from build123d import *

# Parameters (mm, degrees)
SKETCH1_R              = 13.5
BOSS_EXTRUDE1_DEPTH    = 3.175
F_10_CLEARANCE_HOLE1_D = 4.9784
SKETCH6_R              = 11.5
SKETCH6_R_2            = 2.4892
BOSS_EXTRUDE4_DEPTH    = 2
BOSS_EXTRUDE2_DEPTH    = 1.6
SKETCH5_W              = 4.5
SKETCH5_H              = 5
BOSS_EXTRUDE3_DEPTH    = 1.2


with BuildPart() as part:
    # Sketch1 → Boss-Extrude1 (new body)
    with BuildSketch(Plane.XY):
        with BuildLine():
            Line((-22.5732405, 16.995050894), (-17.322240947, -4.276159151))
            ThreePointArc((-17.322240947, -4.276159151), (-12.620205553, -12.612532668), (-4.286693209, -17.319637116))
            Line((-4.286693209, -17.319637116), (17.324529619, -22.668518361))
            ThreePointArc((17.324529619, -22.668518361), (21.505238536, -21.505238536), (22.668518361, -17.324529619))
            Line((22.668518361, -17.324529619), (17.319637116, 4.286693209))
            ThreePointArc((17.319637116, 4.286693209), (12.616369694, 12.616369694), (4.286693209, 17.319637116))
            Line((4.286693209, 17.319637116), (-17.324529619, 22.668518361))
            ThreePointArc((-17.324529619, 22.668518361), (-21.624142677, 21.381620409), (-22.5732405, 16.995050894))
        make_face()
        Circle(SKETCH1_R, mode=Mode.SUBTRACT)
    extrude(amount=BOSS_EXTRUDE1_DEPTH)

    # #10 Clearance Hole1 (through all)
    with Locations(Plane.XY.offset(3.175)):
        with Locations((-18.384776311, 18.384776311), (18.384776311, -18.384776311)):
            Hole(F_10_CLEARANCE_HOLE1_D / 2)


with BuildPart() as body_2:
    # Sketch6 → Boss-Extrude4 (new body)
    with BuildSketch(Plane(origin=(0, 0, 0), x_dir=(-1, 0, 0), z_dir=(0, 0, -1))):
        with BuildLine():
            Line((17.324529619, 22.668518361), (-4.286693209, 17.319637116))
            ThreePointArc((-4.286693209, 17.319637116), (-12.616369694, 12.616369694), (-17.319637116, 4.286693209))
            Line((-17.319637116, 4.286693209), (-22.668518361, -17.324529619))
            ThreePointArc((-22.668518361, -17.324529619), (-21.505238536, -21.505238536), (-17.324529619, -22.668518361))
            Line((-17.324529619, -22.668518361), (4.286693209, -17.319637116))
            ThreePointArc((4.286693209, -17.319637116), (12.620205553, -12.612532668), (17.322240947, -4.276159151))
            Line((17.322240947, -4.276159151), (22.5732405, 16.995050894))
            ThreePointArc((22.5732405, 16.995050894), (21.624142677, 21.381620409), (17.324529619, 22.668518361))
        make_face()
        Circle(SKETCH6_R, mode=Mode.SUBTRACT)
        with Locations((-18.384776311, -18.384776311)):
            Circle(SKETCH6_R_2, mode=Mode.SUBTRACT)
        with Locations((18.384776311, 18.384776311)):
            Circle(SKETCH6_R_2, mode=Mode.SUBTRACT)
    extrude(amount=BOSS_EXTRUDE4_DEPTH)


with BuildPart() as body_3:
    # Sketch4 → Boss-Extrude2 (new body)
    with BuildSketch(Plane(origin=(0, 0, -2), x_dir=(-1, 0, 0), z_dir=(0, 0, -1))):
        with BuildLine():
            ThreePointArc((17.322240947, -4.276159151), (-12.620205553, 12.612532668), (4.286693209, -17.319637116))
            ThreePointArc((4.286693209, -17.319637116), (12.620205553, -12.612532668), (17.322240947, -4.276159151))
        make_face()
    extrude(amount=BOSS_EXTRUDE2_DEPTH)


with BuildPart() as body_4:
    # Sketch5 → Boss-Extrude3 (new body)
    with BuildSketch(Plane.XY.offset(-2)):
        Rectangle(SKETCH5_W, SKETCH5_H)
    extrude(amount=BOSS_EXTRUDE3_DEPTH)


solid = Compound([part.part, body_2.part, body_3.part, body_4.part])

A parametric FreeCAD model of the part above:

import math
import FreeCAD as App
import Part
import Sketcher
from FreeCAD import Vector


def add_polygon(sketch, points):
    """Adds a closed chain of lines whose ends are joined by coincident constraints."""
    first, n = sketch.GeometryCount, len(points)
    for a, b in zip(points, points[1:] + points[:1]):
        sketch.addGeometry(Part.LineSegment(App.Vector(*a, 0), App.Vector(*b, 0)), False)
    for i in range(n):
        sketch.addConstraint(Sketcher.Constraint("Coincident", first + i, 2, first + (i + 1) % n, 1))

doc = App.newDocument("Part")
body = doc.addObject("PartDesign::Body", "Body")

sketch1 = doc.addObject("Sketcher::SketchObject", "Sketch")
body.addObject(sketch1)
sketch1.AttachmentSupport = (doc.XY_Plane, [""])
sketch1.MapMode = "FlatFace"
sketch1.addGeometry(Part.LineSegment(Vector(-22.573241, 16.995051, 0), Vector(-17.322241, -4.276159, 0)), False)
sketch1.addGeometry(Part.ArcOfCircle(Part.Circle(Vector(0, 0, 0), Vector(0, 0, 1), 17.842241), math.radians(-166.133236), math.radians(-103.90161)), False)
sketch1.addGeometry(Part.LineSegment(Vector(-4.286693, -17.319637, 0), Vector(17.32453, -22.668518, 0)), False)
sketch1.addGeometry(Part.ArcOfCircle(Part.Circle(Vector(18.384776, -18.384776, 0), Vector(0, 0, 1), 4.413), math.radians(-103.90161), math.radians(13.90161)), False)
sketch1.addGeometry(Part.LineSegment(Vector(22.668518, -17.32453, 0), Vector(17.319637, 4.286693, 0)), False)
sketch1.addGeometry(Part.ArcOfCircle(Part.Circle(Vector(0, 0, 0), Vector(0, 0, 1), 17.842241), math.radians(13.90161), math.radians(76.09839)), False)
sketch1.addGeometry(Part.LineSegment(Vector(4.286693, 17.319637, 0), Vector(-17.32453, 22.668518, 0)), False)
sketch1.addGeometry(Part.ArcOfCircle(Part.Circle(Vector(-18.384776, 18.384776, 0), Vector(0, 0, 1), 4.413), math.radians(76.09839), math.radians(198.355758)), False)
sketch1.addGeometry(Part.Circle(Vector(0, 0, 0), Vector(0, 0, 1), 13.5), False)
sketch1.addConstraint(Sketcher.Constraint("Tangent", 0, 2, 1, 1))
sketch1.addConstraint(Sketcher.Constraint("Tangent", 1, 2, 2, 1))
sketch1.addConstraint(Sketcher.Constraint("Tangent", 2, 2, 3, 1))
sketch1.addConstraint(Sketcher.Constraint("Tangent", 3, 2, 4, 1))
sketch1.addConstraint(Sketcher.Constraint("Tangent", 4, 2, 5, 1))
sketch1.addConstraint(Sketcher.Constraint("Tangent", 5, 2, 6, 1))
sketch1.addConstraint(Sketcher.Constraint("Tangent", 6, 2, 7, 1))
sketch1.addConstraint(Sketcher.Constraint("Coincident", 7, 2, 0, 1))
sketch1.addConstraint(Sketcher.Constraint("Coincident", 1, 3, -1, 1))
sketch1.addConstraint(Sketcher.Constraint("Coincident", 5, 3, -1, 1))
sketch1.addConstraint(Sketcher.Constraint("Coincident", 8, 3, -1, 1))
sketch1.addConstraint(Sketcher.Constraint("Equal", 1, 5))
sketch1.addConstraint(Sketcher.Constraint("Equal", 3, 7))
sketch1.addConstraint(Sketcher.Constraint("Symmetric", 3, 3, 7, 3, -1, 1))
sketch1.addConstraint(Sketcher.Constraint("Diameter", 8, 27.0))
sketch1.addConstraint(Sketcher.Constraint("Radius", 3, 4.413))
sketch1.addConstraint(Sketcher.Constraint("Radius", 1, 17.842241))
sketch1.addConstraint(Sketcher.Constraint("DistanceX", 7, 2, 0, 2, 5.251))
sketch1.addConstraint(Sketcher.Constraint("Distance", 2, 22.263321))
sketch1.addConstraint(Sketcher.Constraint("DistanceX", 0, 2, -1, 1, 17.322241))
pad1 = doc.addObject("PartDesign::Pad", "Pad")
body.addObject(pad1)
pad1.Profile = sketch1
pad1.Length = 3.175

sketch2 = doc.addObject("Sketcher::SketchObject", "Sketch001")
body.addObject(sketch2)
sketch2.AttachmentSupport = (doc.XY_Plane, [""])
sketch2.MapMode = "FlatFace"
sketch2.AttachmentOffset = App.Placement(Vector(0, 0, 3.175), App.Rotation())
sketch2.addGeometry(Part.Circle(Vector(-18.384776, 18.384776, 0), Vector(0, 0, 1), 2.4892), False)
sketch2.addGeometry(Part.Circle(Vector(18.384776, -18.384776, 0), Vector(0, 0, 1), 2.4892), False)
sketch2.addConstraint(Sketcher.Constraint("Equal", 0, 1))
sketch2.addConstraint(Sketcher.Constraint("Symmetric", 0, 3, 1, 3, -1, 1))
sketch2.addConstraint(Sketcher.Constraint("Diameter", 0, 4.9784))
sketch2.addConstraint(Sketcher.Constraint("DistanceX", 0, 3, -1, 1, 18.384776))
sketch2.addConstraint(Sketcher.Constraint("DistanceY", -1, 1, 0, 3, 18.384776))
doc.recompute()
hole = doc.addObject("PartDesign::Hole", "Hole")
body.addObject(hole)
hole.Profile = sketch2
hole.ThreadType = "None"
hole.Diameter = 4.9784
hole.DepthType = "ThroughAll"
body2 = doc.addObject("PartDesign::Body", "Body001")

sketch3 = doc.addObject("Sketcher::SketchObject", "Sketch002")
body2.addObject(sketch3)
sketch3.AttachmentSupport = (doc.getObject("XY_Plane001"), [""])
sketch3.MapMode = "FlatFace"
sketch3.addGeometry(Part.LineSegment(Vector(-17.32453, 22.668518, 0), Vector(4.286693, 17.319637, 0)), False)
sketch3.addGeometry(Part.ArcOfCircle(Part.Circle(Vector(0, 0, 0), Vector(0, 0, 1), 17.842241), math.radians(13.90161), math.radians(76.09839)), False)
sketch3.addGeometry(Part.LineSegment(Vector(17.319637, 4.286693, 0), Vector(22.668518, -17.32453, 0)), False)
sketch3.addGeometry(Part.ArcOfCircle(Part.Circle(Vector(18.384776, -18.384776, 0), Vector(0, 0, 1), 4.413), math.radians(-103.90161), math.radians(13.90161)), False)
sketch3.addGeometry(Part.LineSegment(Vector(17.32453, -22.668518, 0), Vector(-4.286693, -17.319637, 0)), False)
sketch3.addGeometry(Part.ArcOfCircle(Part.Circle(Vector(0, 0, 0), Vector(0, 0, 1), 17.842241), math.radians(-166.133236), math.radians(-103.90161)), False)
sketch3.addGeometry(Part.LineSegment(Vector(-17.322241, -4.276159, 0), Vector(-22.573241, 16.995051, 0)), False)
sketch3.addGeometry(Part.ArcOfCircle(Part.Circle(Vector(-18.384776, 18.384776, 0), Vector(0, 0, 1), 4.413), math.radians(76.09839), math.radians(198.355758)), False)
sketch3.addGeometry(Part.Circle(Vector(18.384776, -18.384776, 0), Vector(0, 0, 1), 2.4892), False)
sketch3.addGeometry(Part.Circle(Vector(0, 0, 0), Vector(0, 0, 1), 11.5), False)
sketch3.addGeometry(Part.Circle(Vector(-18.384776, 18.384776, 0), Vector(0, 0, 1), 2.4892), False)
sketch3.addConstraint(Sketcher.Constraint("Tangent", 0, 2, 1, 2))
sketch3.addConstraint(Sketcher.Constraint("Tangent", 1, 1, 2, 1))
sketch3.addConstraint(Sketcher.Constraint("Tangent", 2, 2, 3, 2))
sketch3.addConstraint(Sketcher.Constraint("Tangent", 3, 1, 4, 1))
sketch3.addConstraint(Sketcher.Constraint("Tangent", 4, 2, 5, 2))
sketch3.addConstraint(Sketcher.Constraint("Tangent", 5, 1, 6, 1))
sketch3.addConstraint(Sketcher.Constraint("Coincident", 6, 2, 7, 2))
sketch3.addConstraint(Sketcher.Constraint("Tangent", 7, 1, 0, 1))
sketch3.addConstraint(Sketcher.Constraint("Coincident", 1, 3, -1, 1))
sketch3.addConstraint(Sketcher.Constraint("Coincident", 5, 3, -1, 1))
sketch3.addConstraint(Sketcher.Constraint("Coincident", 9, 3, -1, 1))
sketch3.addConstraint(Sketcher.Constraint("Coincident", 8, 3, 3, 3))
sketch3.addConstraint(Sketcher.Constraint("Coincident", 10, 3, 7, 3))
sketch3.addConstraint(Sketcher.Constraint("Equal", 1, 5))
sketch3.addConstraint(Sketcher.Constraint("Equal", 3, 7))
sketch3.addConstraint(Sketcher.Constraint("Equal", 8, 10))
sketch3.addConstraint(Sketcher.Constraint("Symmetric", 3, 3, 7, 3, -1, 1))
sketch3.addConstraint(Sketcher.Constraint("Diameter", 9, 23.0))
sketch3.addConstraint(Sketcher.Constraint("Radius", 3, 4.413))
sketch3.addConstraint(Sketcher.Constraint("Diameter", 8, 4.9784))
sketch3.addConstraint(Sketcher.Constraint("Radius", 1, 17.842241))
sketch3.addConstraint(Sketcher.Constraint("DistanceX", 6, 2, 5, 1, 5.251))
sketch3.addConstraint(Sketcher.Constraint("Distance", 0, 22.263321))
sketch3.addConstraint(Sketcher.Constraint("DistanceX", -1, 1, 2, 2, 22.668518))
pad2 = doc.addObject("PartDesign::Pad", "Pad001")
body2.addObject(pad2)
pad2.Profile = sketch3
pad2.Length = 2
pad2.Reversed = True
body3 = doc.addObject("PartDesign::Body", "Body002")

sketch4 = doc.addObject("Sketcher::SketchObject", "Sketch003")
body3.addObject(sketch4)
sketch4.AttachmentSupport = (doc.getObject("XY_Plane002"), [""])
sketch4.MapMode = "FlatFace"
sketch4.AttachmentOffset = App.Placement(Vector(0, 0, -2), App.Rotation())
sketch4.addGeometry(Part.ArcOfCircle(Part.Circle(Vector(0, 0, 0), Vector(0, 0, 1), 17.842241), math.radians(-103.90161), math.radians(193.866764)), False)
sketch4.addGeometry(Part.ArcOfCircle(Part.Circle(Vector(0, 0, 0), Vector(0, 0, 1), 17.842241), math.radians(-166.133236), math.radians(-103.90161)), False)
sketch4.addConstraint(Sketcher.Constraint("Tangent", 0, 1, 1, 2))
sketch4.addConstraint(Sketcher.Constraint("Coincident", 1, 1, 0, 2))
sketch4.addConstraint(Sketcher.Constraint("Coincident", 0, 3, -1, 1))
sketch4.addConstraint(Sketcher.Constraint("Radius", 0, 17.842241))
sketch4.addConstraint(Sketcher.Constraint("DistanceX", 1, 1, -1, 1, 17.322241))
sketch4.addConstraint(Sketcher.Constraint("DistanceX", 0, 1, -1, 1, 4.286693))
pad3 = doc.addObject("PartDesign::Pad", "Pad002")
body3.addObject(pad3)
pad3.Profile = sketch4
pad3.Length = 1.6
pad3.Reversed = True
body4 = doc.addObject("PartDesign::Body", "Body003")

sketch5 = doc.addObject("Sketcher::SketchObject", "Sketch004")
body4.addObject(sketch5)
sketch5.AttachmentSupport = (doc.getObject("XY_Plane003"), [""])
sketch5.MapMode = "FlatFace"
sketch5.AttachmentOffset = App.Placement(Vector(0, 0, -2), App.Rotation())
add_polygon(sketch5, [(-2.25, 2.5), (-2.25, -2.5), (2.25, -2.5), (2.25, 2.5)])
sketch5.addConstraint(Sketcher.Constraint("Vertical", 0))
sketch5.addConstraint(Sketcher.Constraint("Horizontal", 1))
sketch5.addConstraint(Sketcher.Constraint("Vertical", 2))
sketch5.addConstraint(Sketcher.Constraint("Horizontal", 3))
sketch5.addConstraint(Sketcher.Constraint("Symmetric", 0, 2, 2, 2, -1, 1))
sketch5.addConstraint(Sketcher.Constraint("DistanceY", 0, 2, 0, 1, 5.0))
sketch5.addConstraint(Sketcher.Constraint("DistanceX", 1, 1, 1, 2, 4.5))
pad4 = doc.addObject("PartDesign::Pad", "Pad003")
body4.addObject(pad4)
pad4.Profile = sketch5
pad4.Length = 1.2

doc.recompute()
